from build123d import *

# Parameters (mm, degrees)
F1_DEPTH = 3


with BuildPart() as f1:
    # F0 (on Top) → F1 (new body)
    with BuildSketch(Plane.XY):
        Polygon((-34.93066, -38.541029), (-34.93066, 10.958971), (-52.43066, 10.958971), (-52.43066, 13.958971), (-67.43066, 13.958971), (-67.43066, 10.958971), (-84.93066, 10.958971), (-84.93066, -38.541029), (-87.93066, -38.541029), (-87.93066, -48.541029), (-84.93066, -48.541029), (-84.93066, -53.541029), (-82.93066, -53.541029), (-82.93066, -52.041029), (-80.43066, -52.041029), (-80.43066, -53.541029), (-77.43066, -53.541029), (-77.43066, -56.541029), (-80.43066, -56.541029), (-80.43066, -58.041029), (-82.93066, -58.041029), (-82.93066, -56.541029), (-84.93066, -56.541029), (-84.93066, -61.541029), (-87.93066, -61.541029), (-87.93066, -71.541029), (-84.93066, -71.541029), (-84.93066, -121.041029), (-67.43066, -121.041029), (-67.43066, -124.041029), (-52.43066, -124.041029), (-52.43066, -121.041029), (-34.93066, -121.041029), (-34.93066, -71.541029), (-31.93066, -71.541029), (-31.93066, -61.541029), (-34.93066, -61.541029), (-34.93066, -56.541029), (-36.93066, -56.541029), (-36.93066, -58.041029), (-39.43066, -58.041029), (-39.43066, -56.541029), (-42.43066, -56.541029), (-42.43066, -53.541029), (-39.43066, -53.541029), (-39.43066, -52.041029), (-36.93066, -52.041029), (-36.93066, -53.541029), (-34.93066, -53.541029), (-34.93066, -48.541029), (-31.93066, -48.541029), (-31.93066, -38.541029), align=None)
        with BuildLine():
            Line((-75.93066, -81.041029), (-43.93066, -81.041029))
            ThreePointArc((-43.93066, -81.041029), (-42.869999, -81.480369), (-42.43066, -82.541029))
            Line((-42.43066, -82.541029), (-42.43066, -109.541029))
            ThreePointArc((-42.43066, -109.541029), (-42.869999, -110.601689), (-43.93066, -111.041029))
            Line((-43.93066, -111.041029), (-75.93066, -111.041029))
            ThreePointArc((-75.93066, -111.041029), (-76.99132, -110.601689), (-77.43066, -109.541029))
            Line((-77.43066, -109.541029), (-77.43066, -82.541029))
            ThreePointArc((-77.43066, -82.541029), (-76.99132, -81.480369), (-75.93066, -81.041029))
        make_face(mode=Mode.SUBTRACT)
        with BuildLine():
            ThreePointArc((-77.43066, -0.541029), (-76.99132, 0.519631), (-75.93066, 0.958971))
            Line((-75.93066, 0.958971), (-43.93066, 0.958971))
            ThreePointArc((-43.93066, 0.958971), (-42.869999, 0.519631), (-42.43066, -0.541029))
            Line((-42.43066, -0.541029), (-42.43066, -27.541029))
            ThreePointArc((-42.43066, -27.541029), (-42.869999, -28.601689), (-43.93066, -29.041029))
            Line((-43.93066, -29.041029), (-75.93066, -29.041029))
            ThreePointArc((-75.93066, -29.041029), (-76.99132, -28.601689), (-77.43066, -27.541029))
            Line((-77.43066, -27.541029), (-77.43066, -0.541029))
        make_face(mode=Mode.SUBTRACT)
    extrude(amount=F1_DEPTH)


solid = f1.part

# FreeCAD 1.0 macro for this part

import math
import FreeCAD as App
import Part
import Sketcher
from FreeCAD import Vector
Q = App.Units.Quantity

doc = App.newDocument("Part")
body = doc.addObject("PartDesign::Body", "Body")

# Sketch on XY plane
sketch1 = doc.addObject("Sketcher::SketchObject", "Sketch")
body.addObject(sketch1)
sketch1.AttachmentSupport = (doc.XY_Plane, [""])
sketch1.MapMode = "FlatFace"
sketch1.addGeometry(Part.LineSegment(Vector(-34.93066, -38.541029, 0), Vector(-34.93066, 10.958971, 0)), False)
sketch1.addGeometry(Part.LineSegment(Vector(-34.93066, 10.958971, 0), Vector(-52.43066, 10.958971, 0)), False)
sketch1.addGeometry(Part.LineSegment(Vector(-52.43066, 10.958971, 0), Vector(-52.43066, 13.958971, 0)), False)
sketch1.addGeometry(Part.LineSegment(Vector(-52.43066, 13.958971, 0), Vector(-67.43066, 13.958971, 0)), False)
sketch1.addGeometry(Part.LineSegment(Vector(-67.43066, 13.958971, 0), Vector(-67.43066, 10.958971, 0)), False)
sketch1.addGeometry(Part.LineSegment(Vector(-67.43066, 10.958971, 0), Vector(-84.93066, 10.958971, 0)), False)
sketch1.addGeometry(Part.LineSegment(Vector(-84.93066, 10.958971, 0), Vector(-84.93066, -38.541029, 0)), False)
sketch1.addGeometry(Part.LineSegment(Vector(-84.93066, -38.541029, 0), Vector(-87.93066, -38.541029, 0)), False)
sketch1.addGeometry(Part.LineSegment(Vector(-87.93066, -38.541029, 0), Vector(-87.93066, -48.541029, 0)), False)
sketch1.addGeometry(Part.LineSegment(Vector(-87.93066, -48.541029, 0), Vector(-84.93066, -48.541029, 0)), False)
sketch1.addGeometry(Part.LineSegment(Vector(-84.93066, -48.541029, 0), Vector(-84.93066, -53.541029, 0)), False)
sketch1.addGeometry(Part.LineSegment(Vector(-84.93066, -53.541029, 0), Vector(-82.93066, -53.541029, 0)), False)
sketch1.addGeometry(Part.LineSegment(Vector(-82.93066, -53.541029, 0), Vector(-82.93066, -52.041029, 0)), False)
sketch1.addGeometry(Part.LineSegment(Vector(-82.93066, -52.041029, 0), Vector(-80.43066, -52.041029, 0)), False)
sketch1.addGeometry(Part.LineSegment(Vector(-80.43066, -52.041029, 0), Vector(-80.43066, -53.541029, 0)), False)
sketch1.addGeometry(Part.LineSegment(Vector(-80.43066, -53.541029, 0), Vector(-77.43066, -53.541029, 0)), False)
sketch1.addGeometry(Part.LineSegment(Vector(-77.43066, -53.541029, 0), Vector(-77.43066, -56.541029, 0)), False)
sketch1.addGeometry(Part.LineSegment(Vector(-77.43066, -56.541029, 0), Vector(-80.43066, -56.541029, 0)), False)
sketch1.addGeometry(Part.LineSegment(Vector(-80.43066, -56.541029, 0), Vector(-80.43066, -58.041029, 0)), False)
sketch1.addGeometry(Part.LineSegment(Vector(-80.43066, -58.041029, 0), Vector(-82.93066, -58.041029, 0)), False)
sketch1.addGeometry(Part.LineSegment(Vector(-82.93066, -58.041029, 0), Vector(-82.93066, -56.541029, 0)), False)
sketch1.addGeometry(Part.LineSegment(Vector(-82.93066, -56.541029, 0), Vector(-84.93066, -56.541029, 0)), False)
sketch1.addGeometry(Part.LineSegment(Vector(-84.93066, -56.541029, 0), Vector(-84.93066, -61.541029, 0)), False)
sketch1.addGeometry(Part.LineSegment(Vector(-84.93066, -61.541029, 0), Vector(-87.93066, -61.541029, 0)), False)
sketch1.addGeometry(Part.LineSegment(Vector(-87.93066, -61.541029, 0), Vector(-87.93066, -71.541029, 0)), False)
sketch1.addGeometry(Part.LineSegment(Vector(-87.93066, -71.541029, 0), Vector(-84.93066, -71.541029, 0)), False)
sketch1.addGeometry(Part.LineSegment(Vector(-84.93066, -71.541029, 0), Vector(-84.93066, -121.041029, 0)), False)
sketch1.addGeometry(Part.LineSegment(Vector(-84.93066, -121.041029, 0), Vector(-67.43066, -121.041029, 0)), False)
sketch1.addGeometry(Part.LineSegment(Vector(-67.43066, -121.041029, 0), Vector(-67.43066, -124.041029, 0)), False)
sketch1.addGeometry(Part.LineSegment(Vector(-67.43066, -124.041029, 0), Vector(-52.43066, -124.041029, 0)), False)
sketch1.addGeometry(Part.LineSegment(Vector(-52.43066, -124.041029, 0), Vector(-52.43066, -121.041029, 0)), False)
sketch1.addGeometry(Part.LineSegment(Vector(-52.43066, -121.041029, 0), Vector(-34.93066, -121.041029, 0)), False)
sketch1.addGeometry(Part.LineSegment(Vector(-34.93066, -121.041029, 0), Vector(-34.93066, -71.541029, 0)), False)
sketch1.addGeometry(Part.LineSegment(Vector(-34.93066, -71.541029, 0), Vector(-31.93066, -71.541029, 0)), False)
sketch1.addGeometry(Part.LineSegment(Vector(-31.93066, -71.541029, 0), Vector(-31.93066, -61.541029, 0)), False)
sketch1.addGeometry(Part.LineSegment(Vector(-31.93066, -61.541029, 0), Vector(-34.93066, -61.541029, 0)), False)
sketch1.addGeometry(Part.LineSegment(Vector(-34.93066, -61.541029, 0), Vector(-34.93066, -56.541029, 0)), False)
sketch1.addGeometry(Part.LineSegment(Vector(-34.93066, -56.541029, 0), Vector(-36.93066, -56.541029, 0)), False)
sketch1.addGeometry(Part.LineSegment(Vector(-36.93066, -56.541029, 0), Vector(-36.93066, -58.041029, 0)), False)
sketch1.addGeometry(Part.LineSegment(Vector(-36.93066, -58.041029, 0), Vector(-39.43066, -58.041029, 0)), False)
sketch1.addGeometry(Part.LineSegment(Vector(-39.43066, -58.041029, 0), Vector(-39.43066, -56.541029, 0)), False)
sketch1.addGeometry(Part.LineSegment(Vector(-39.43066, -56.541029, 0), Vector(-42.43066, -56.541029, 0)), False)
sketch1.addGeometry(Part.LineSegment(Vector(-42.43066, -56.541029, 0), Vector(-42.43066, -53.541029, 0)), False)
sketch1.addGeometry(Part.LineSegment(Vector(-42.43066, -53.541029, 0), Vector(-39.43066, -53.541029, 0)), False)
sketch1.addGeometry(Part.LineSegment(Vector(-39.43066, -53.541029, 0), Vector(-39.43066, -52.041029, 0)), False)
sketch1.addGeometry(Part.LineSegment(Vector(-39.43066, -52.041029, 0), Vector(-36.93066, -52.041029, 0)), False)
sketch1.addGeometry(Part.LineSegment(Vector(-36.93066, -52.041029, 0), Vector(-36.93066, -53.541029, 0)), False)
sketch1.addGeometry(Part.LineSegment(Vector(-36.93066, -53.541029, 0), Vector(-34.93066, -53.541029, 0)), False)
sketch1.addGeometry(Part.LineSegment(Vector(-34.93066, -53.541029, 0), Vector(-34.93066, -48.541029, 0)), False)
sketch1.addGeometry(Part.LineSegment(Vector(-34.93066, -48.541029, 0), Vector(-31.93066, -48.541029, 0)), False)
sketch1.addGeometry(Part.LineSegment(Vector(-31.93066, -48.541029, 0), Vector(-31.93066, -38.541029, 0)), False)
sketch1.addGeometry(Part.LineSegment(Vector(-31.93066, -38.541029, 0), Vector(-34.93066, -38.541029, 0)), False)
sketch1.addGeometry(Part.ArcOfCircle(Part.Circle(Vector(-75.930659, -82.54103, 0), Vector(0, 0, 1), 1.500001), math.radians(90.000022), math.radians(179.999978)), False)
sketch1.addGeometry(Part.LineSegment(Vector(-75.93066, -81.041029, 0), Vector(-43.93066, -81.041029, 0)), False)
sketch1.addGeometry(Part.ArcOfCircle(Part.Circle(Vector(-43.930659, -82.541028, 0), Vector(0, 0, 1), 1.499999), math.radians(-0.000043), math.radians(90.000043)), False)
sketch1.addGeometry(Part.LineSegment(Vector(-42.43066, -82.541029, 0), Vector(-42.43066, -109.541029, 0)), False)
sketch1.addGeometry(Part.ArcOfCircle(Part.Circle(Vector(-43.930659, -109.54103, 0), Vector(0, 0, 1), 1.499999), math.radians(-90.000043), math.radians(0.000043)), False)
sketch1.addGeometry(Part.LineSegment(Vector(-43.93066, -111.041029, 0), Vector(-75.93066, -111.041029, 0)), False)
sketch1.addGeometry(Part.ArcOfCircle(Part.Circle(Vector(-75.930659, -109.541028, 0), Vector(0, 0, 1), 1.500001), math.radians(-179.999978), math.radians(-90.000022)), False)
sketch1.addGeometry(Part.LineSegment(Vector(-77.43066, -109.541029, 0), Vector(-77.43066, -82.541029, 0)), False)
sketch1.addGeometry(Part.LineSegment(Vector(-77.43066, -27.541029, 0), Vector(-77.43066, -0.541029, 0)), False)
sketch1.addGeometry(Part.ArcOfCircle(Part.Circle(Vector(-75.930659, -0.54103, 0), Vector(0, 0, 1), 1.500001), math.radians(90.000022), math.radians(179.999978)), False)
sketch1.addGeometry(Part.LineSegment(Vector(-75.93066, 0.958971, 0), Vector(-43.93066, 0.958971, 0)), False)
sketch1.addGeometry(Part.ArcOfCircle(Part.Circle(Vector(-43.930659, -0.541028, 0), Vector(0, 0, 1), 1.499999), math.radians(-0.000043), math.radians(90.000043)), False)
sketch1.addGeometry(Part.LineSegment(Vector(-42.43066, -0.541029, 0), Vector(-42.43066, -27.541029, 0)), False)
sketch1.addGeometry(Part.ArcOfCircle(Part.Circle(Vector(-43.930659, -27.54103, 0), Vector(0, 0, 1), 1.499999), math.radians(-90.000043), math.radians(0.000043)), False)
sketch1.addGeometry(Part.LineSegment(Vector(-43.93066, -29.041029, 0), Vector(-75.93066, -29.041029, 0)), False)
sketch1.addGeometry(Part.ArcOfCircle(Part.Circle(Vector(-75.930659, -27.541028, 0), Vector(0, 0, 1), 1.500001), math.radians(-179.999978), math.radians(-90.000022)), False)
sketch1.addConstraint(Sketcher.Constraint("Coincident", 0, 2, 1, 1))
sketch1.addConstraint(Sketcher.Constraint("Coincident", 1, 2, 2, 1))
sketch1.addConstraint(Sketcher.Constraint("Coincident", 2, 2, 3, 1))
sketch1.addConstraint(Sketcher.Constraint("Coincident", 3, 2, 4, 1))
sketch1.addConstraint(Sketcher.Constraint("Coincident", 4, 2, 5, 1))
sketch1.addConstraint(Sketcher.Constraint("Coincident", 5, 2, 6, 1))
sketch1.addConstraint(Sketcher.Constraint("Coincident", 6, 2, 7, 1))
sketch1.addConstraint(Sketcher.Constraint("Coincident", 7, 2, 8, 1))
sketch1.addConstraint(Sketcher.Constraint("Coincident", 8, 2, 9, 1))
sketch1.addConstraint(Sketcher.Constraint("Coincident", 9, 2, 10, 1))
sketch1.addConstraint(Sketcher.Constraint("Coincident", 10, 2, 11, 1))
sketch1.addConstraint(Sketcher.Constraint("Coincident", 11, 2, 12, 1))
sketch1.addConstraint(Sketcher.Constraint("Coincident", 12, 2, 13, 1))
sketch1.addConstraint(Sketcher.Constraint("Coincident", 13, 2, 14, 1))
sketch1.addConstraint(Sketcher.Constraint("Coincident", 14, 2, 15, 1))
sketch1.addConstraint(Sketcher.Constraint("Coincident", 15, 2, 16, 1))
sketch1.addConstraint(Sketcher.Constraint("Coincident", 16, 2, 17, 1))
sketch1.addConstraint(Sketcher.Constraint("Coincident", 17, 2, 18, 1))
sketch1.addConstraint(Sketcher.Constraint("Coincident", 18, 2, 19, 1))
sketch1.addConstraint(Sketcher.Constraint("Coincident", 19, 2, 20, 1))
sketch1.addConstraint(Sketcher.Constraint("Coincident", 20, 2, 21, 1))
sketch1.addConstraint(Sketcher.Constraint("Coincident", 21, 2, 22, 1))
sketch1.addConstraint(Sketcher.Constraint("Coincident", 22, 2, 23, 1))
sketch1.addConstraint(Sketcher.Constraint("Coincident", 23, 2, 24, 1))
sketch1.addConstraint(Sketcher.Constraint("Coincident", 24, 2, 25, 1))
sketch1.addConstraint(Sketcher.Constraint("Coincident", 25, 2, 26, 1))
sketch1.addConstraint(Sketcher.Constraint("Coincident", 26, 2, 27, 1))
sketch1.addConstraint(Sketcher.Constraint("Coincident", 27, 2, 28, 1))
sketch1.addConstraint(Sketcher.Constraint("Coincident", 28, 2, 29, 1))
sketch1.addConstraint(Sketcher.Constraint("Coincident", 29, 2, 30, 1))
sketch1.addConstraint(Sketcher.Constraint("Coincident", 30, 2, 31, 1))
sketch1.addConstraint(Sketcher.Constraint("Coincident", 31, 2, 32, 1))
sketch1.addConstraint(Sketcher.Constraint("Coincident", 32, 2, 33, 1))
sketch1.addConstraint(Sketcher.Constraint("Coincident", 33, 2, 34, 1))
sketch1.addConstraint(Sketcher.Constraint("Coincident", 34, 2, 35, 1))
sketch1.addConstraint(Sketcher.Constraint("Coincident", 35, 2, 36, 1))
sketch1.addConstraint(Sketcher.Constraint("Coincident", 36, 2, 37, 1))
sketch1.addConstraint(Sketcher.Constraint("Coincident", 37, 2, 38, 1))
sketch1.addConstraint(Sketcher.Constraint("Coincident", 38, 2, 39, 1))
sketch1.addConstraint(Sketcher.Constraint("Coincident", 39, 2, 40, 1))
sketch1.addConstraint(Sketcher.Constraint("Coincident", 40, 2, 41, 1))
sketch1.addConstraint(Sketcher.Constraint("Coincident", 41, 2, 42, 1))
sketch1.addConstraint(Sketcher.Constraint("Coincident", 42, 2, 43, 1))
sketch1.addConstraint(Sketcher.Constraint("Coincident", 43, 2, 44, 1))
sketch1.addConstraint(Sketcher.Constraint("Coincident", 44, 2, 45, 1))
sketch1.addConstraint(Sketcher.Constraint("Coincident", 45, 2, 46, 1))
sketch1.addConstraint(Sketcher.Constraint("Coincident", 46, 2, 47, 1))
sketch1.addConstraint(Sketcher.Constraint("Coincident", 47, 2, 48, 1))
sketch1.addConstraint(Sketcher.Constraint("Coincident", 48, 2, 49, 1))
sketch1.addConstraint(Sketcher.Constraint("Coincident", 49, 2, 50, 1))
sketch1.addConstraint(Sketcher.Constraint("Coincident", 50, 2, 51, 1))
sketch1.addConstraint(Sketcher.Constraint("Coincident", 51, 2, 0, 1))
sketch1.addConstraint(Sketcher.Constraint("Tangent", 52, 1, 53, 1))
sketch1.addConstraint(Sketcher.Constraint("Tangent", 53, 2, 54, 2))
sketch1.addConstraint(Sketcher.Constraint("Tangent", 54, 1, 55, 1))
sketch1.addConstraint(Sketcher.Constraint("Tangent", 55, 2, 56, 2))
sketch1.addConstraint(Sketcher.Constraint("Tangent", 56, 1, 57, 1))
sketch1.addConstraint(Sketcher.Constraint("Tangent", 57, 2, 58, 2))
sketch1.addConstraint(Sketcher.Constraint("Tangent", 58, 1, 59, 1))
sketch1.addConstraint(Sketcher.Constraint("Tangent", 59, 2, 52, 2))
sketch1.addConstraint(Sketcher.Constraint("Tangent", 60, 2, 61, 2))
sketch1.addConstraint(Sketcher.Constraint("Tangent", 61, 1, 62, 1))
sketch1.addConstraint(Sketcher.Constraint("Tangent", 62, 2, 63, 2))
sketch1.addConstraint(Sketcher.Constraint("Tangent", 63, 1, 64, 1))
sketch1.addConstraint(Sketcher.Constraint("Tangent", 64, 2, 65, 2))
sketch1.addConstraint(Sketcher.Constraint("Tangent", 65, 1, 66, 1))
sketch1.addConstraint(Sketcher.Constraint("Tangent", 66, 2, 67, 2))
sketch1.addConstraint(Sketcher.Constraint("Tangent", 67, 1, 60, 1))
sketch1.addConstraint(Sketcher.Constraint("Vertical", 0))
sketch1.addConstraint(Sketcher.Constraint("Horizontal", 1))
sketch1.addConstraint(Sketcher.Constraint("Vertical", 2))
sketch1.addConstraint(Sketcher.Constraint("Horizontal", 3))
sketch1.addConstraint(Sketcher.Constraint("Vertical", 4))
sketch1.addConstraint(Sketcher.Constraint("Horizontal", 5))
sketch1.addConstraint(Sketcher.Constraint("Vertical", 6))
sketch1.addConstraint(Sketcher.Constraint("Horizontal", 7))
sketch1.addConstraint(Sketcher.Constraint("Vertical", 8))
sketch1.addConstraint(Sketcher.Constraint("Horizontal", 9))
sketch1.addConstraint(Sketcher.Constraint("Vertical", 10))
sketch1.addConstraint(Sketcher.Constraint("Horizontal", 11))
sketch1.addConstraint(Sketcher.Constraint("Vertical", 12))
sketch1.addConstraint(Sketcher.Constraint("Horizontal", 13))
sketch1.addConstraint(Sketcher.Constraint("Vertical", 14))
sketch1.addConstraint(Sketcher.Constraint("Horizontal", 15))
sketch1.addConstraint(Sketcher.Constraint("Vertical", 16))
sketch1.addConstraint(Sketcher.Constraint("Horizontal", 17))
sketch1.addConstraint(Sketcher.Constraint("Vertical", 18))
sketch1.addConstraint(Sketcher.Constraint("Horizontal", 19))
sketch1.addConstraint(Sketcher.Constraint("Vertical", 20))
sketch1.addConstraint(Sketcher.Constraint("Horizontal", 21))
sketch1.addConstraint(Sketcher.Constraint("Vertical", 22))
sketch1.addConstraint(Sketcher.Constraint("Horizontal", 23))
sketch1.addConstraint(Sketcher.Constraint("Vertical", 24))
sketch1.addConstraint(Sketcher.Constraint("Horizontal", 25))
sketch1.addConstraint(Sketcher.Constraint("Vertical", 26))
sketch1.addConstraint(Sketcher.Constraint("Horizontal", 27))
sketch1.addConstraint(Sketcher.Constraint("Vertical", 28))
sketch1.addConstraint(Sketcher.Constraint("Horizontal", 29))
sketch1.addConstraint(Sketcher.Constraint("Vertical", 30))
sketch1.addConstraint(Sketcher.Constraint("Horizontal", 31))
sketch1.addConstraint(Sketcher.Constraint("Vertical", 32))
sketch1.addConstraint(Sketcher.Constraint("Horizontal", 33))
sketch1.addConstraint(Sketcher.Constraint("Vertical", 34))
sketch1.addConstraint(Sketcher.Constraint("Horizontal", 35))
sketch1.addConstraint(Sketcher.Constraint("Vertical", 36))
sketch1.addConstraint(Sketcher.Constraint("Horizontal", 37))
sketch1.addConstraint(Sketcher.Constraint("Vertical", 38))
sketch1.addConstraint(Sketcher.Constraint("Horizontal", 39))
sketch1.addConstraint(Sketcher.Constraint("Vertical", 40))
sketch1.addConstraint(Sketcher.Constraint("Horizontal", 41))
sketch1.addConstraint(Sketcher.Constraint("Vertical", 42))
sketch1.addConstraint(Sketcher.Constraint("Horizontal", 43))
sketch1.addConstraint(Sketcher.Constraint("Vertical", 44))
sketch1.addConstraint(Sketcher.Constraint("Horizontal", 45))
sketch1.addConstraint(Sketcher.Constraint("Vertical", 46))
sketch1.addConstraint(Sketcher.Constraint("Horizontal", 47))
sketch1.addConstraint(Sketcher.Constraint("Vertical", 48))
sketch1.addConstraint(Sketcher.Constraint("Horizontal", 49))
sketch1.addConstraint(Sketcher.Constraint("Vertical", 50))
sketch1.addConstraint(Sketcher.Constraint("Horizontal", 51))
sketch1.addConstraint(Sketcher.Constraint("Horizontal", 53))
sketch1.addConstraint(Sketcher.Constraint("Vertical", 55))
sketch1.addConstraint(Sketcher.Constraint("Horizontal", 57))
sketch1.addConstraint(Sketcher.Constraint("Vertical", 59))
sketch1.addConstraint(Sketcher.Constraint("Vertical", 60))
sketch1.addConstraint(Sketcher.Constraint("Horizontal", 62))
sketch1.addConstraint(Sketcher.Constraint("Vertical", 64))
sketch1.addConstraint(Sketcher.Constraint("Horizontal", 66))
sketch1.addConstraint(Sketcher.Constraint("Equal", 52, 54))
sketch1.addConstraint(Sketcher.Constraint("Equal", 54, 56))
sketch1.addConstraint(Sketcher.Constraint("Equal", 56, 58))
sketch1.addConstraint(Sketcher.Constraint("Equal", 58, 61))
sketch1.addConstraint(Sketcher.Constraint("Equal", 61, 63))
sketch1.addConstraint(Sketcher.Constraint("Equal", 63, 65))
sketch1.addConstraint(Sketcher.Constraint("Equal", 65, 67))
sketch1.addConstraint(Sketcher.Constraint("Horizontal", 1, 2, 4, 2))
sketch1.addConstraint(Sketcher.Constraint("Horizontal", 11, 2, 14, 2))
sketch1.addConstraint(Sketcher.Constraint("Horizontal", 17, 2, 20, 2))
sketch1.addConstraint(Sketcher.Constraint("Horizontal", 27, 2, 30, 2))
sketch1.addConstraint(Sketcher.Constraint("Horizontal", 25, 2, 32, 2))
sketch1.addConstraint(Sketcher.Constraint("Horizontal", 23, 2, 34, 2))
sketch1.addConstraint(Sketcher.Constraint("Horizontal", 21, 2, 36, 2))
sketch1.addConstraint(Sketcher.Constraint("Horizontal", 19, 2, 38, 2))
sketch1.addConstraint(Sketcher.Constraint("Horizontal", 37, 2, 40, 2))
sketch1.addConstraint(Sketcher.Constraint("Horizontal", 15, 2, 42, 2))
sketch1.addConstraint(Sketcher.Constraint("Horizontal", 13, 2, 44, 2))
sketch1.addConstraint(Sketcher.Constraint("Horizontal", 43, 2, 46, 2))
sketch1.addConstraint(Sketcher.Constraint("Horizontal", 9, 2, 48, 2))
sketch1.addConstraint(Sketcher.Constraint("Horizontal", 7, 2, 50, 2))
sketch1.addConstraint(Sketcher.Constraint("Vertical", 58, 3, 61, 3))
sketch1.addConstraint(Sketcher.Constraint("Vertical", 56, 3, 63, 3))
sketch1.addConstraint(Sketcher.Constraint("Vertical", 6, 2, 9, 2))
sketch1.addConstraint(Sketcher.Constraint("Vertical", 14, 2, 17, 2))
sketch1.addConstraint(Sketcher.Constraint("Vertical", 12, 2, 19, 2))
sketch1.addConstraint(Sketcher.Constraint("Vertical", 10, 2, 21, 2))
sketch1.addConstraint(Sketcher.Constraint("Vertical", 8, 2, 23, 2))
sketch1.addConstraint(Sketcher.Constraint("Vertical", 22, 2, 25, 2))
sketch1.addConstraint(Sketcher.Constraint("Vertical", 4, 2, 27, 2))
sketch1.addConstraint(Sketcher.Constraint("Vertical", 2, 2, 29, 2))
sketch1.addConstraint(Sketcher.Constraint("Vertical", 0, 2, 31, 2))
sketch1.addConstraint(Sketcher.Constraint("Vertical", 32, 2, 35, 2))
sketch1.addConstraint(Sketcher.Constraint("Vertical", 40, 2, 43, 2))
sketch1.addConstraint(Sketcher.Constraint("Vertical", 38, 2, 45, 2))
sketch1.addConstraint(Sketcher.Constraint("Vertical", 36, 2, 47, 2))
sketch1.addConstraint(Sketcher.Constraint("Vertical", 34, 2, 49, 2))
sketch1.addConstraint(Sketcher.Constraint("Vertical", 42, 2, 54, 1))
sketch1.addConstraint(Sketcher.Constraint("Vertical", 16, 2, 58, 1))
sketch1.addConstraint(Sketcher.Constraint("Equal", 1, 5))
sketch1.addConstraint(Sketcher.Constraint("Equal", 9, 15))
sketch1.addConstraint(Sketcher.Constraint("Equal", 25, 33))
sketch1.addConstraint(Sketcher.Constraint("Equal", 21, 37))
sketch1.addConstraint(Sketcher.Constraint("Equal", 19, 39))
sketch1.addConstraint(Sketcher.Constraint("Equal", 35, 41))
sketch1.addConstraint(Sketcher.Constraint("Equal", 51, 2))
sketch1.addConstraint(Sketcher.Constraint("Equal", 4, 16))
sketch1.addConstraint(Sketcher.Constraint("Equal", 14, 18))
sketch1.addConstraint(Sketcher.Constraint("Equal", 10, 22))
sketch1.addConstraint(Sketcher.Constraint("Equal", 8, 24))
sketch1.addConstraint(Sketcher.Constraint("Equal", 6, 26))
sketch1.addConstraint(Sketcher.Constraint("Equal", 16, 28))
sketch1.addConstraint(Sketcher.Constraint("Equal", 59, 60))
sketch1.addConstraint(Sketcher.Constraint("Radius", 52, Q("1.500001 mm")))
sketch1.addConstraint(Sketcher.Constraint("DistanceX", 3, 2, 3, 1, Q("15 mm")))
sketch1.addConstraint(Sketcher.Constraint("DistanceX", 7, 2, 7, 1, Q("3 mm")))
sketch1.addConstraint(Sketcher.Constraint("DistanceX", 11, 1, 11, 2, Q("2 mm")))
sketch1.addConstraint(Sketcher.Constraint("DistanceX", 53, 1, 53, 2, Q("32 mm")))
sketch1.addConstraint(Sketcher.Constraint("DistanceY", 8, 2, 8, 1, Q("10 mm")))
sketch1.addConstraint(Sketcher.Constraint("DistanceY", 10, 2, 10, 1, Q("5 mm")))
sketch1.addConstraint(Sketcher.Constraint("DistanceY", 55, 2, 55, 1, Q("27 mm")))
sketch1.addConstraint(Sketcher.Constraint("DistanceX", 1, 2, 1, 1, Q("17.5 mm")))
sketch1.addConstraint(Sketcher.Constraint("DistanceY", 0, 1, 0, 2, Q("49.5 mm")))
sketch1.addConstraint(Sketcher.Constraint("DistanceY", 12, 1, 12, 2, Q("1.5 mm")))
sketch1.addConstraint(Sketcher.Constraint("DistanceX", 52, 3, -1, 1, Q("75.930659 mm")))
sketch1.addConstraint(Sketcher.Constraint("DistanceY", 52, 3, -1, 1, Q("82.54103 mm")))
sketch1.addConstraint(Sketcher.Constraint("DistanceY", 61, 3, -1, 1, Q("0.54103 mm")))
sketch1.addConstraint(Sketcher.Constraint("DistanceY", -1, 1, 0, 2, Q("10.958971 mm")))
pad1 = doc.addObject("PartDesign::Pad", "Pad")
body.addObject(pad1)
pad1.Profile = sketch1
pad1.Length = 3

doc.recompute()
